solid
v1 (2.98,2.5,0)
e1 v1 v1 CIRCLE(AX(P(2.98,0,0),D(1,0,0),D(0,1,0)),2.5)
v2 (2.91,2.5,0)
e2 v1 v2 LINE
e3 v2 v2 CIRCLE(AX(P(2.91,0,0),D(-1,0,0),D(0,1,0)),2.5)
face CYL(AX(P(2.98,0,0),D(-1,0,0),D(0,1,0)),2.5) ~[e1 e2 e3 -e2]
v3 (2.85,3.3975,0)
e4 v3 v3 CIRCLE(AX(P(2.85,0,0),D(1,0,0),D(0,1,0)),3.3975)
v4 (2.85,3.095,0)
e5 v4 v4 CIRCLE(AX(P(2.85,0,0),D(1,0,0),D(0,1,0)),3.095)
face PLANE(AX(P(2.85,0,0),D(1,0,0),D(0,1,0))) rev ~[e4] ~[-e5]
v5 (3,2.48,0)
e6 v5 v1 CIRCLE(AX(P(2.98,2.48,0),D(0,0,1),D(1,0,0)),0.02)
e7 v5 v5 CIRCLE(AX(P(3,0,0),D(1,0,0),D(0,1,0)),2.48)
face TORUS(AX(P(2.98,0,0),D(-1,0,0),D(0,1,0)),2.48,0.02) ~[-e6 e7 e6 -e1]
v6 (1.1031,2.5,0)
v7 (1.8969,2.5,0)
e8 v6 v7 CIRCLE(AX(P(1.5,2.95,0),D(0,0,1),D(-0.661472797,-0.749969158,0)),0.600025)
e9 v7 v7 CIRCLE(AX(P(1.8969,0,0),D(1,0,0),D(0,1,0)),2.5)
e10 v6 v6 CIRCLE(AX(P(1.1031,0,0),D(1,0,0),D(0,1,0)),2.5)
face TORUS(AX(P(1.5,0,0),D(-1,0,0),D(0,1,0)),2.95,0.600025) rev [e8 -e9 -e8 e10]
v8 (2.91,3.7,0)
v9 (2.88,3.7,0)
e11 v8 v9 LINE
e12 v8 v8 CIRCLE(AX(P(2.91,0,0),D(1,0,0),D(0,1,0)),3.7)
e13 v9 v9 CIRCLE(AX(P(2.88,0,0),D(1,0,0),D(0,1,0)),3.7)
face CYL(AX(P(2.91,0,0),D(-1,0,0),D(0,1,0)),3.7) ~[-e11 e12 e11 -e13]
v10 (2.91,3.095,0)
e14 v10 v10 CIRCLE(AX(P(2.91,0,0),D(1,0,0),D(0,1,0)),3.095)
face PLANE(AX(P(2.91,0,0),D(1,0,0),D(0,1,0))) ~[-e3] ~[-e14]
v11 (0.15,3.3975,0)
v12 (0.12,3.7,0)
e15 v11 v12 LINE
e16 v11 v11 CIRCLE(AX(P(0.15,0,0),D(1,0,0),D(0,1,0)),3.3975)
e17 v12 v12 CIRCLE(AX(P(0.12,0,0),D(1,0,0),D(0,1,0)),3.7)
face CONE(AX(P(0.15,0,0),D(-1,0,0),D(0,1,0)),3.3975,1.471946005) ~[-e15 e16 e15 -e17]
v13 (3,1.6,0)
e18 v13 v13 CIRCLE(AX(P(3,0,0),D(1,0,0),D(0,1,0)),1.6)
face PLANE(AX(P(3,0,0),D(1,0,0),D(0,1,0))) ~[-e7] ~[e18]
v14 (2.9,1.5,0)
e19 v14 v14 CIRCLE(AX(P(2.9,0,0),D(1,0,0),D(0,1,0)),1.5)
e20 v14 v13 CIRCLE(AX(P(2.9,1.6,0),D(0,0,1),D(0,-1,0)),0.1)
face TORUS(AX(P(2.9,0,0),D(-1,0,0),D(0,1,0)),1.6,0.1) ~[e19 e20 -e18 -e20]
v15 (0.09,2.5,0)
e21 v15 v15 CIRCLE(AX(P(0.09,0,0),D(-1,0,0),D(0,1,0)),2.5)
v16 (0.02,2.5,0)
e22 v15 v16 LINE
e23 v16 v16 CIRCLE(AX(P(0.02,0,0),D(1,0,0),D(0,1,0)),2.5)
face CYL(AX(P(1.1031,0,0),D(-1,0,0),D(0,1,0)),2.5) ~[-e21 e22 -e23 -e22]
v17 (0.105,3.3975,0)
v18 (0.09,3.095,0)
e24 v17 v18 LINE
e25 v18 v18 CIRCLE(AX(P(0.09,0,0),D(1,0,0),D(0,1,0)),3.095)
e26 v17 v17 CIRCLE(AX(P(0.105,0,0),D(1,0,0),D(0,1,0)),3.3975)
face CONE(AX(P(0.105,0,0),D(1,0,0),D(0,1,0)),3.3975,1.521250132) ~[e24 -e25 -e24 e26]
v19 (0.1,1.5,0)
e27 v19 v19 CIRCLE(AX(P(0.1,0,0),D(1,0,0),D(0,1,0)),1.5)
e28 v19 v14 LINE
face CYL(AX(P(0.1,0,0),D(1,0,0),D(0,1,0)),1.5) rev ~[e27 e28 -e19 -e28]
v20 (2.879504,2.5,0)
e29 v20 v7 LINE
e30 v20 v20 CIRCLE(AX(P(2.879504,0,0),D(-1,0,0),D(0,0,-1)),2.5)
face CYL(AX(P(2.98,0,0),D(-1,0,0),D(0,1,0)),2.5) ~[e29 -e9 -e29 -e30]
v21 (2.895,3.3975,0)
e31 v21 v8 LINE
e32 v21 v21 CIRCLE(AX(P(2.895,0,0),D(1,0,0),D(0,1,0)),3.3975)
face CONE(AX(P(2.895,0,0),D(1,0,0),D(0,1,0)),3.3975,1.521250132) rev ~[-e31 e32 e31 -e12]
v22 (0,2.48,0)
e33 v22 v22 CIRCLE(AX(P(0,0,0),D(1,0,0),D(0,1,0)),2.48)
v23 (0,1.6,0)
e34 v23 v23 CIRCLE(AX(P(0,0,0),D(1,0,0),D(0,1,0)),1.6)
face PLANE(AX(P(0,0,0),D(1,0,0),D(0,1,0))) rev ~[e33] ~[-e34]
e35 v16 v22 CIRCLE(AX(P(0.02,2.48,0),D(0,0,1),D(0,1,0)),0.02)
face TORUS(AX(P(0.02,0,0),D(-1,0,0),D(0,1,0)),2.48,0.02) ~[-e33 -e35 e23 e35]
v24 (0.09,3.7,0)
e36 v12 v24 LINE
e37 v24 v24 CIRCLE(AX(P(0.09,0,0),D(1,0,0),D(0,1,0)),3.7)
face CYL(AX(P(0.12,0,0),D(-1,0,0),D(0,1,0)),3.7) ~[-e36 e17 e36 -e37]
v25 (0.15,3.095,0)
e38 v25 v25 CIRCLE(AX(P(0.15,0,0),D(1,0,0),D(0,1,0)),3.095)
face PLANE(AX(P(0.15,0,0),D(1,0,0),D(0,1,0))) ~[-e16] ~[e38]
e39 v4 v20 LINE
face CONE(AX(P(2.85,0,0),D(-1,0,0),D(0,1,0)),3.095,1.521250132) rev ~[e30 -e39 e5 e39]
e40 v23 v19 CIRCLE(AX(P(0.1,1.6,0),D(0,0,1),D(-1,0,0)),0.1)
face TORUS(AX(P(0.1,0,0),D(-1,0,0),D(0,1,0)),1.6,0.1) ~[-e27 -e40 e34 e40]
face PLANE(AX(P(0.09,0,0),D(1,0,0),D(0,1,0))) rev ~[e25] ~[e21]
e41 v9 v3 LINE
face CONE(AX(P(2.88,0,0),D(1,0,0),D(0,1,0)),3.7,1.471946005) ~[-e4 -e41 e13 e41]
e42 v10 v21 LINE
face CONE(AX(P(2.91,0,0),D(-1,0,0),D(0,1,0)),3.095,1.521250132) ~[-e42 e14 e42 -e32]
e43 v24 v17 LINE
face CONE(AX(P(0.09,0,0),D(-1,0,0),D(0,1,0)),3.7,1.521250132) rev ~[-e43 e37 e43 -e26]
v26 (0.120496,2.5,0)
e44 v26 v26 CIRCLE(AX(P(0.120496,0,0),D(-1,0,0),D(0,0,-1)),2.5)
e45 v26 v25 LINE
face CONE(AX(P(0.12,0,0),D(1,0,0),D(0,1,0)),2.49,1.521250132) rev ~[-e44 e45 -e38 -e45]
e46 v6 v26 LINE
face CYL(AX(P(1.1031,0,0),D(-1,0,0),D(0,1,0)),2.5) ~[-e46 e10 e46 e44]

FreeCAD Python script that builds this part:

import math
import FreeCAD as App
import Part
import Sketcher

doc = App.newDocument("Part")
body = doc.addObject("PartDesign::Body", "Body")

# Sketch on XY plane
sketch1 = body.newObject("Sketcher::SketchObject", "Sketch")
sketch1.AttachmentSupport = (doc.getObject("XY_Plane"), [""])
sketch1.MapMode = "FlatFace"
sketch1.addGeometry(Part.ArcOfCircle(Part.Circle(App.Vector(0.02, 2.48, 0), App.Vector(0, 0, 1), 0.02), math.radians(90), math.radians(180)), False)
sketch1.addGeometry(Part.LineSegment(App.Vector(0, 2.48, 0), App.Vector(0, 1.6, 0)), False)
sketch1.addGeometry(Part.ArcOfCircle(Part.Circle(App.Vector(0.1, 1.6, 0), App.Vector(0, 0, 1), 0.1), math.radians(180), math.radians(270)), False)
sketch1.addGeometry(Part.LineSegment(App.Vector(0.1, 1.5, 0), App.Vector(2.9, 1.5, 0)), False)
sketch1.addGeometry(Part.ArcOfCircle(Part.Circle(App.Vector(2.9, 1.6, 0), App.Vector(0, 0, 1), 0.1), math.radians(-90), math.radians(0)), False)
sketch1.addGeometry(Part.LineSegment(App.Vector(3, 1.6, 0), App.Vector(3, 2.48, 0)), False)
sketch1.addGeometry(Part.ArcOfCircle(Part.Circle(App.Vector(2.98, 2.48, 0), App.Vector(0, 0, 1), 0.02), math.radians(0), math.radians(90)), False)
sketch1.addGeometry(Part.LineSegment(App.Vector(2.98, 2.5, 0), App.Vector(1.897, 2.5, 0)), False)
sketch1.addGeometry(Part.ArcOfCircle(Part.Circle(App.Vector(1.5, 2.95, 0), App.Vector(0, 0, 1), 0.6), math.radians(-131), math.radians(-49)), False)
sketch1.addGeometry(Part.LineSegment(App.Vector(1.103, 2.5, 0), App.Vector(0.02, 2.5, 0)), False)
sketch1.addConstraint(Sketcher.Constraint("Tangent", 0, 2, 1, 1))
sketch1.addConstraint(Sketcher.Constraint("Tangent", 1, 2, 2, 1))
sketch1.addConstraint(Sketcher.Constraint("Tangent", 2, 2, 3, 1))
sketch1.addConstraint(Sketcher.Constraint("Tangent", 3, 2, 4, 1))
sketch1.addConstraint(Sketcher.Constraint("Tangent", 4, 2, 5, 1))
sketch1.addConstraint(Sketcher.Constraint("Tangent", 5, 2, 6, 1))
sketch1.addConstraint(Sketcher.Constraint("Tangent", 6, 2, 7, 1))
sketch1.addConstraint(Sketcher.Constraint("Coincident", 7, 2, 8, 2))
sketch1.addConstraint(Sketcher.Constraint("Coincident", 8, 1, 9, 1))
sketch1.addConstraint(Sketcher.Constraint("Tangent", 9, 2, 0, 1))
sketch1.addConstraint(Sketcher.Constraint("Vertical", 1))
sketch1.addConstraint(Sketcher.Constraint("Horizontal", 3))
sketch1.addConstraint(Sketcher.Constraint("Vertical", 5))
sketch1.addConstraint(Sketcher.Constraint("Horizontal", 7))
sketch1.addConstraint(Sketcher.Constraint("Horizontal", 9))
sketch1.addConstraint(Sketcher.Constraint("Equal", 2, 4))
sketch1.addConstraint(Sketcher.Constraint("Equal", 0, 6))
sketch1.addConstraint(Sketcher.Constraint("PointOnObject", 0, 2, -2))
sketch1.addConstraint(Sketcher.Constraint("Horizontal", 0, 3, 6, 3))
sketch1.addConstraint(Sketcher.Constraint("Equal", 7, 9))
sketch1.addConstraint(Sketcher.Constraint("Radius", 2, 0.1))
sketch1.addConstraint(Sketcher.Constraint("Radius", 8, 0.6))
sketch1.addConstraint(Sketcher.Constraint("Radius", 0, 0.02))
sketch1.addConstraint(Sketcher.Constraint("DistanceX", 3, 1, 3, 2, 2.8))
sketch1.addConstraint(Sketcher.Constraint("DistanceY", 3, 2, 6, 2, 1.0))
sketch1.addConstraint(Sketcher.Constraint("DistanceY", -1, 1, 2, 3, 1.6))
sketch1.addConstraint(Sketcher.Constraint("DistanceX", 7, 2, 7, 1, 1.083))
revolution = body.newObject("PartDesign::Revolution", "Revolution")
revolution.Profile = sketch1
revolution.ReferenceAxis = (sketch1, ["H_Axis"])
revolution.Angle = 360

# Sketch on XY plane
sketch2 = body.newObject("Sketcher::SketchObject", "Sketch001")
sketch2.AttachmentSupport = (doc.getObject("XY_Plane"), [""])
sketch2.MapMode = "FlatFace"
sketch2.addGeometry(Part.LineSegment(App.Vector(0.12, 3.7, 0), App.Vector(0.09, 3.7, 0)), False)
sketch2.addGeometry(Part.LineSegment(App.Vector(0.09, 3.7, 0), App.Vector(0.105, 3.397, 0)), False)
sketch2.addGeometry(Part.LineSegment(App.Vector(0.105, 3.397, 0), App.Vector(0.09, 3.095, 0)), False)
sketch2.addGeometry(Part.LineSegment(App.Vector(0.09, 3.095, 0), App.Vector(0.09, 2.49, 0)), False)
sketch2.addGeometry(Part.LineSegment(App.Vector(0.09, 2.49, 0), App.Vector(0.12, 2.49, 0)), False)
sketch2.addGeometry(Part.LineSegment(App.Vector(0.12, 2.49, 0), App.Vector(0.15, 3.095, 0)), False)
sketch2.addGeometry(Part.LineSegment(App.Vector(0.15, 3.095, 0), App.Vector(0.15, 3.397, 0)), False)
sketch2.addGeometry(Part.LineSegment(App.Vector(0.15, 3.397, 0), App.Vector(0.12, 3.7, 0)), False)
sketch2.addConstraint(Sketcher.Constraint("Coincident", 0, 2, 1, 1))
sketch2.addConstraint(Sketcher.Constraint("Coincident", 1, 2, 2, 1))
sketch2.addConstraint(Sketcher.Constraint("Coincident", 2, 2, 3, 1))
sketch2.addConstraint(Sketcher.Constraint("Coincident", 3, 2, 4, 1))
sketch2.addConstraint(Sketcher.Constraint("Coincident", 4, 2, 5, 1))
sketch2.addConstraint(Sketcher.Constraint("Coincident", 5, 2, 6, 1))
sketch2.addConstraint(Sketcher.Constraint("Coincident", 6, 2, 7, 1))
sketch2.addConstraint(Sketcher.Constraint("Coincident", 7, 2, 0, 1))
sketch2.addConstraint(Sketcher.Constraint("Horizontal", 0))
sketch2.addConstraint(Sketcher.Constraint("Vertical", 3))
sketch2.addConstraint(Sketcher.Constraint("Horizontal", 4))
sketch2.addConstraint(Sketcher.Constraint("Vertical", 6))
sketch2.addConstraint(Sketcher.Constraint("Parallel", 2, 5))
sketch2.addConstraint(Sketcher.Constraint("Horizontal", 2, 2, 5, 2))
sketch2.addConstraint(Sketcher.Constraint("Horizontal", 1, 2, 6, 2))
sketch2.addConstraint(Sketcher.Constraint("Vertical", 0, 2, 2, 2))
sketch2.addConstraint(Sketcher.Constraint("Vertical", 4, 2, 7, 2))
sketch2.addConstraint(Sketcher.Constraint("Equal", 1, 2))
sketch2.addConstraint(Sketcher.Constraint("DistanceX", 0, 2, 0, 1, 0.03))
sketch2.addConstraint(Sketcher.Constraint("DistanceY", -1, 1, 0, 2, 3.7))
sketch2.addConstraint(Sketcher.Constraint("DistanceY", 3, 2, 3, 1, 0.605))
sketch2.addConstraint(Sketcher.Constraint("DistanceX", -1, 1, 0, 2, 0.09))
sketch2.addConstraint(Sketcher.Constraint("DistanceY", -1, 1, 3, 2, 2.49))
sketch2.addConstraint(Sketcher.Constraint("DistanceX", -1, 1, 5, 2, 0.15))
revolution2 = body.newObject("PartDesign::Revolution", "Revolution001")
revolution2.Profile = sketch2
revolution2.ReferenceAxis = (sketch2, ["H_Axis"])
revolution2.Angle = 360

# Sketch on XY plane
sketch3 = body.newObject("Sketcher::SketchObject", "Sketch002")
sketch3.AttachmentSupport = (doc.getObject("XY_Plane"), [""])
sketch3.MapMode = "FlatFace"
sketch3.addGeometry(Part.LineSegment(App.Vector(2.88, 3.7, 0), App.Vector(2.85, 3.397, 0)), False)
sketch3.addGeometry(Part.LineSegment(App.Vector(2.85, 3.397, 0), App.Vector(2.85, 3.095, 0)), False)
sketch3.addGeometry(Part.LineSegment(App.Vector(2.85, 3.095, 0), App.Vector(2.88, 2.49, 0)), False)
sketch3.addGeometry(Part.LineSegment(App.Vector(2.88, 2.49, 0), App.Vector(2.91, 2.49, 0)), False)
sketch3.addGeometry(Part.LineSegment(App.Vector(2.91, 2.49, 0), App.Vector(2.91, 3.095, 0)), False)
sketch3.addGeometry(Part.LineSegment(App.Vector(2.91, 3.095, 0), App.Vector(2.895, 3.397, 0)), False)
sketch3.addGeometry(Part.LineSegment(App.Vector(2.895, 3.397, 0), App.Vector(2.91, 3.7, 0)), False)
sketch3.addGeometry(Part.LineSegment(App.Vector(2.91, 3.7, 0), App.Vector(2.88, 3.7, 0)), False)
sketch3.addConstraint(Sketcher.Constraint("Coincident", 0, 2, 1, 1))
sketch3.addConstraint(Sketcher.Constraint("Coincident", 1, 2, 2, 1))
sketch3.addConstraint(Sketcher.Constraint("Coincident", 2, 2, 3, 1))
sketch3.addConstraint(Sketcher.Constraint("Coincident", 3, 2, 4, 1))
sketch3.addConstraint(Sketcher.Constraint("Coincident", 4, 2, 5, 1))
sketch3.addConstraint(Sketcher.Constraint("Coincident", 5, 2, 6, 1))
sketch3.addConstraint(Sketcher.Constraint("Coincident", 6, 2, 7, 1))
sketch3.addConstraint(Sketcher.Constraint("Coincident", 7, 2, 0, 1))
sketch3.addConstraint(Sketcher.Constraint("Vertical", 1))
sketch3.addConstraint(Sketcher.Constraint("Horizontal", 3))
sketch3.addConstraint(Sketcher.Constraint("Vertical", 4))
sketch3.addConstraint(Sketcher.Constraint("Horizontal", 7))
sketch3.addConstraint(Sketcher.Constraint("Parallel", 2, 5))
sketch3.addConstraint(Sketcher.Constraint("Horizontal", 1, 2, 4, 2))
sketch3.addConstraint(Sketcher.Constraint("Horizontal", 0, 2, 5, 2))
sketch3.addConstraint(Sketcher.Constraint("Vertical", 4, 2, 6, 2))
sketch3.addConstraint(Sketcher.Constraint("Vertical", 2, 2, 7, 2))
sketch3.addConstraint(Sketcher.Constraint("Equal", 5, 6))
sketch3.addConstraint(Sketcher.Constraint("DistanceX", 3, 1, 3, 2, 0.03))
sketch3.addConstraint(Sketcher.Constraint("DistanceY", -1, 1, 6, 2, 3.7))
sketch3.addConstraint(Sketcher.Constraint("DistanceY", 4, 1, 4, 2, 0.605))
sketch3.addConstraint(Sketcher.Constraint("DistanceX", -1, 1, 0, 2, 2.85))
sketch3.addConstraint(Sketcher.Constraint("DistanceX", -1, 1, 2, 2, 2.88))
sketch3.addConstraint(Sketcher.Constraint("DistanceY", -1, 1, 2, 2, 2.49))
revolution3 = body.newObject("PartDesign::Revolution", "Revolution002")
revolution3.Profile = sketch3
revolution3.ReferenceAxis = (sketch3, ["H_Axis"])
revolution3.Angle = 360

doc.recompute()
